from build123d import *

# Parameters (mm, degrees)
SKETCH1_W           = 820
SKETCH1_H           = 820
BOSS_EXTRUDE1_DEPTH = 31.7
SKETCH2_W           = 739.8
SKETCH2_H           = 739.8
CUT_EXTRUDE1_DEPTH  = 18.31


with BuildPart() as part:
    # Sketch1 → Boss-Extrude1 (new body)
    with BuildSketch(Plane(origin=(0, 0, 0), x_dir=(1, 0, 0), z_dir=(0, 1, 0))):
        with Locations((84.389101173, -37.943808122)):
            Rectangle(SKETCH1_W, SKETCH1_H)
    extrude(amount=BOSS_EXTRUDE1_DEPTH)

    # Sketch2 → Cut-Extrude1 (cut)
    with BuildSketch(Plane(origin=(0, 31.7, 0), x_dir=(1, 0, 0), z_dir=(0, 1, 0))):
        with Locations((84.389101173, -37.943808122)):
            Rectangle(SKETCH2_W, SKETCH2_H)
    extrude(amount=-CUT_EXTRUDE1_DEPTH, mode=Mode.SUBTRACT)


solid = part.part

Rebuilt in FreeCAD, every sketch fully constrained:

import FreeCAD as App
import Part
import Sketcher

V = App.Vector
Q = App.Units.Quantity

doc = App.newDocument("Part")
params = doc.addObject("Spreadsheet::Sheet", "Params")
for row, (alias, value) in enumerate([
    ("sketch1_width", "820 mm"),
    ("pad1_length", "31.7 mm"),
    ("sketch2_width", "739.8 mm"),
    ("pocket1_length", "18.31 mm"),
], start=1):
    params.set(f"A{row}", alias)
    params.set(f"B{row}", "=" + value)
    params.setAlias(f"B{row}", alias)

body = doc.addObject("PartDesign::Body", "Body")

sketch1 = body.newObject("Sketcher::SketchObject", "Sketch")
sketch1.AttachmentSupport = (doc.getObject("XZ_Plane"), [""])
sketch1.MapMode = "FlatFace"
sketch1.addGeometry([
    Part.LineSegment(V(-326, -372, 0), V(-326, 448, 0)),
    Part.LineSegment(V(-326, 448, 0), V(494, 448, 0)),
    Part.LineSegment(V(494, 448, 0), V(494, -372, 0)),
    Part.LineSegment(V(494, -372, 0), V(-326, -372, 0)),
], False)
sketch1.addConstraint([
    Sketcher.Constraint("Coincident", 0, 2, 1, 1),
    Sketcher.Constraint("Coincident", 1, 2, 2, 1),
    Sketcher.Constraint("Coincident", 2, 2, 3, 1),
    Sketcher.Constraint("Coincident", 3, 2, 0, 1),
    Sketcher.Constraint("Vertical", 0),
    Sketcher.Constraint("Horizontal", 1),
    Sketcher.Constraint("Vertical", 2),
    Sketcher.Constraint("Horizontal", 3),
    Sketcher.Constraint("Equal", 3, 0),
    Sketcher.Constraint("DistanceX", 1, 1, 1, 2, Q("820 mm")),
    Sketcher.Constraint("DistanceX", 0, 2, -1, 1, Q("325.610899 mm")),
    Sketcher.Constraint("DistanceY", -1, 1, 0, 2, Q("447.943808 mm")),
])
sketch1.setExpression("Constraints[9]", "Params.sketch1_width")
pad1 = body.newObject("PartDesign::Pad", "Pad")
pad1.Profile = sketch1
pad1.setExpression("Length", "Params.pad1_length")
pad1.Reversed = True

sketch2 = body.newObject("Sketcher::SketchObject", "Sketch001")
sketch2.AttachmentSupport = (doc.getObject("XZ_Plane"), [""])
sketch2.MapMode = "FlatFace"
sketch2.AttachmentOffset = App.Placement(V(0, 0, -31.7), App.Rotation())
sketch2.addGeometry([
    Part.LineSegment(V(-286, -332, 0), V(-286, 408, 0)),
    Part.LineSegment(V(-286, 408, 0), V(454, 408, 0)),
    Part.LineSegment(V(454, 408, 0), V(454, -332, 0)),
    Part.LineSegment(V(454, -332, 0), V(-286, -332, 0)),
], False)
sketch2.addConstraint([
    Sketcher.Constraint("Coincident", 0, 2, 1, 1),
    Sketcher.Constraint("Coincident", 1, 2, 2, 1),
    Sketcher.Constraint("Coincident", 2, 2, 3, 1),
    Sketcher.Constraint("Coincident", 3, 2, 0, 1),
    Sketcher.Constraint("Vertical", 0),
    Sketcher.Constraint("Horizontal", 1),
    Sketcher.Constraint("Vertical", 2),
    Sketcher.Constraint("Horizontal", 3),
    Sketcher.Constraint("Equal", 3, 0),
    Sketcher.Constraint("DistanceX", 1, 1, 1, 2, Q("739.8 mm")),
    Sketcher.Constraint("DistanceX", 0, 2, -1, 1, Q("285.510899 mm")),
    Sketcher.Constraint("DistanceY", -1, 1, 0, 2, Q("407.843808 mm")),
])
sketch2.setExpression("Constraints[9]", "Params.sketch2_width")
pocket1 = body.newObject("PartDesign::Pocket", "Pocket")
pocket1.Profile = sketch2
pocket1.setExpression("Length", "Params.pocket1_length")
pocket1.Reversed = True

doc.recompute()
